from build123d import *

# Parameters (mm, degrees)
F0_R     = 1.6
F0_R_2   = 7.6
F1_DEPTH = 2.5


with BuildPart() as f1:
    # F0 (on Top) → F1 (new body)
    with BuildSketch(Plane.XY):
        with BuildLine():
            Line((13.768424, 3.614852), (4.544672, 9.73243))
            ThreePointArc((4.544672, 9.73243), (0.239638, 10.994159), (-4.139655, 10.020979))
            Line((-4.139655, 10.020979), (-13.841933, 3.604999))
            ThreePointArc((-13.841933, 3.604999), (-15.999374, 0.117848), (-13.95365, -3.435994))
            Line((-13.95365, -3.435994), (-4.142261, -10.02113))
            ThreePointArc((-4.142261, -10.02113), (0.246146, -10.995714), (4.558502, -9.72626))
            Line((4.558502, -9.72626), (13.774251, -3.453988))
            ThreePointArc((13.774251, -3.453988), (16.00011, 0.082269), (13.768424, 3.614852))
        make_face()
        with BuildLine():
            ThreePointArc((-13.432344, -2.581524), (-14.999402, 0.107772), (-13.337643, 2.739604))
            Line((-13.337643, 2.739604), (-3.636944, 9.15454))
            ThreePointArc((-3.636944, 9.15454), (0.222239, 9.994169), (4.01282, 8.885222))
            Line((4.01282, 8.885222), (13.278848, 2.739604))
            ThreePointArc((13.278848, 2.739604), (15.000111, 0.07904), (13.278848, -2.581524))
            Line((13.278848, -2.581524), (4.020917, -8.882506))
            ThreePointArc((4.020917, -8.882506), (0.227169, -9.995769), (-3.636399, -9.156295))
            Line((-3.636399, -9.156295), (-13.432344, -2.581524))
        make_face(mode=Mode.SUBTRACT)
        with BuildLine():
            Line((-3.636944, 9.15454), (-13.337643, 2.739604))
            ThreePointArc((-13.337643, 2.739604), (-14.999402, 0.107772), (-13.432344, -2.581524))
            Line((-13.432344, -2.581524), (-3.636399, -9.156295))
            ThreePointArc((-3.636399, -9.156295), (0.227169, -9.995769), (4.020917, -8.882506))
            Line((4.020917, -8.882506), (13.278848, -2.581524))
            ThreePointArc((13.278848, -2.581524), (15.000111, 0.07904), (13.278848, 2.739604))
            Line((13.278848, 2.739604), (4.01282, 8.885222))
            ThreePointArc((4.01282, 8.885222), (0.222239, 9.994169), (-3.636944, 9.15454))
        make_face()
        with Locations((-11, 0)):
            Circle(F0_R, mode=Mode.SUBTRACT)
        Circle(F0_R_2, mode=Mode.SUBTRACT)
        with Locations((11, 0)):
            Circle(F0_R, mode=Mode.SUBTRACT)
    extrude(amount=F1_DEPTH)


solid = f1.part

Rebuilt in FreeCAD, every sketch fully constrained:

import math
import FreeCAD as App
import Part
import Sketcher

doc = App.newDocument("Part")
body = doc.addObject("PartDesign::Body", "Body")

# Sketch on XY plane
sketch1 = body.newObject("Sketcher::SketchObject", "Sketch")
sketch1.AttachmentSupport = (doc.getObject("XY_Plane"), [""])
sketch1.MapMode = "FlatFace"
sketch1.addGeometry(Part.LineSegment(App.Vector(13.8, 3.6, 0), App.Vector(4.5, 9.7, 0)), False)
sketch1.addGeometry(Part.ArcOfCircle(Part.Circle(App.Vector(-0.1, 2, 0), App.Vector(0, 0, 1), 9), math.radians(59), math.radians(117)), False)
sketch1.addGeometry(Part.LineSegment(App.Vector(-4.1, 10, 0), App.Vector(-13.8, 3.6, 0)), False)
sketch1.addGeometry(Part.ArcOfCircle(Part.Circle(App.Vector(-12, 0.1, 0), App.Vector(0, 0, 1), 4), math.radians(117), math.radians(241)), False)
sketch1.addGeometry(Part.LineSegment(App.Vector(-14, -3.4, 0), App.Vector(-4.1, -10, 0)), False)
sketch1.addGeometry(Part.ArcOfCircle(Part.Circle(App.Vector(-0.1, -2, 0), App.Vector(0, 0, 1), 9), math.radians(-117), math.radians(-59)), False)
sketch1.addGeometry(Part.LineSegment(App.Vector(4.6, -9.7, 0), App.Vector(13.8, -3.5, 0)), False)
sketch1.addGeometry(Part.ArcOfCircle(Part.Circle(App.Vector(12.1, 0.1, 0), App.Vector(0, 0, 1), 3.9), math.radians(-64), math.radians(65)), False)
sketch1.addGeometry(Part.Circle(App.Vector(-11, 0, 0), App.Vector(0, 0, 1), 1.6), False)
sketch1.addGeometry(Part.Circle(App.Vector(0, 0, 0), App.Vector(0, 0, 1), 7.6), False)
sketch1.addGeometry(Part.Circle(App.Vector(11, 0, 0), App.Vector(0, 0, 1), 1.6), False)
sketch1.addConstraint(Sketcher.Constraint("Coincident", 0, 2, 1, 1))
sketch1.addConstraint(Sketcher.Constraint("Coincident", 1, 2, 2, 1))
sketch1.addConstraint(Sketcher.Constraint("Coincident", 2, 2, 3, 1))
sketch1.addConstraint(Sketcher.Constraint("Coincident", 3, 2, 4, 1))
sketch1.addConstraint(Sketcher.Constraint("Coincident", 4, 2, 5, 1))
sketch1.addConstraint(Sketcher.Constraint("Coincident", 5, 2, 6, 1))
sketch1.addConstraint(Sketcher.Constraint("Coincident", 6, 2, 7, 1))
sketch1.addConstraint(Sketcher.Constraint("Coincident", 7, 2, 0, 1))
sketch1.addConstraint(Sketcher.Constraint("Coincident", 9, 3, -1, 1))
sketch1.addConstraint(Sketcher.Constraint("Equal", 8, 10))
sketch1.addConstraint(Sketcher.Constraint("Symmetric", 8, 3, 10, 3, -1, 1))
sketch1.addConstraint(Sketcher.Constraint("PointOnObject", 8, 3, -1))
sketch1.addConstraint(Sketcher.Constraint("Radius", 1, 9.0))
sketch1.addConstraint(Sketcher.Constraint("Radius", 3, 4.0))
sketch1.addConstraint(Sketcher.Constraint("Diameter", 8, 3.2))
sketch1.addConstraint(Sketcher.Constraint("Diameter", 9, 15.2))
sketch1.addConstraint(Sketcher.Constraint("DistanceX", 8, 3, -1, 1, 11.0))
sketch1.addConstraint(Sketcher.Constraint("DistanceY", -1, 1, 2, 2, 3.604999))
sketch1.addConstraint(Sketcher.Constraint("Radius", 5, 8.999996))
sketch1.addConstraint(Sketcher.Constraint("Radius", 7, 3.916855))
sketch1.addConstraint(Sketcher.Constraint("DistanceY", 5, 2, 7, 3, 9.8053))
sketch1.addConstraint(Sketcher.Constraint("Distance", 0, 11.068078))
sketch1.addConstraint(Sketcher.Constraint("Distance", 2, 11.63181))
sketch1.addConstraint(Sketcher.Constraint("Distance", 6, 11.147709))
sketch1.addConstraint(Sketcher.Constraint("DistanceY", -1, 1, 3, 3, 0.054389))
sketch1.addConstraint(Sketcher.Constraint("DistanceX", 5, 3, -1, 1, 0.05869))
sketch1.addConstraint(Sketcher.Constraint("DistanceY", 5, 3, -1, 1, 2.000882))
sketch1.addConstraint(Sketcher.Constraint("DistanceY", -1, 1, 7, 3, 0.07904))
sketch1.addConstraint(Sketcher.Constraint("DistanceY", -1, 1, 0, 2, 9.73243))
sketch1.addConstraint(Sketcher.Constraint("DistanceY", -1, 1, 1, 2, 10.020979))
sketch1.addConstraint(Sketcher.Constraint("DistanceX", 3, 2, -1, 1, 13.95365))
sketch1.addConstraint(Sketcher.Constraint("DistanceX", 4, 2, -1, 1, 4.142261))
sketch1.addConstraint(Sketcher.Constraint("DistanceX", -1, 1, 6, 2, 13.774251))
sketch1.addConstraint(Sketcher.Constraint("DistanceY", -1, 1, 7, 2, 3.614852))
sketch1.addConstraint(Sketcher.Constraint("DistanceX", 1, 3, 7, 3, 12.142492))
pad1 = body.newObject("PartDesign::Pad", "Pad")
pad1.Profile = sketch1
pad1.Length = 2.5

doc.recompute()
